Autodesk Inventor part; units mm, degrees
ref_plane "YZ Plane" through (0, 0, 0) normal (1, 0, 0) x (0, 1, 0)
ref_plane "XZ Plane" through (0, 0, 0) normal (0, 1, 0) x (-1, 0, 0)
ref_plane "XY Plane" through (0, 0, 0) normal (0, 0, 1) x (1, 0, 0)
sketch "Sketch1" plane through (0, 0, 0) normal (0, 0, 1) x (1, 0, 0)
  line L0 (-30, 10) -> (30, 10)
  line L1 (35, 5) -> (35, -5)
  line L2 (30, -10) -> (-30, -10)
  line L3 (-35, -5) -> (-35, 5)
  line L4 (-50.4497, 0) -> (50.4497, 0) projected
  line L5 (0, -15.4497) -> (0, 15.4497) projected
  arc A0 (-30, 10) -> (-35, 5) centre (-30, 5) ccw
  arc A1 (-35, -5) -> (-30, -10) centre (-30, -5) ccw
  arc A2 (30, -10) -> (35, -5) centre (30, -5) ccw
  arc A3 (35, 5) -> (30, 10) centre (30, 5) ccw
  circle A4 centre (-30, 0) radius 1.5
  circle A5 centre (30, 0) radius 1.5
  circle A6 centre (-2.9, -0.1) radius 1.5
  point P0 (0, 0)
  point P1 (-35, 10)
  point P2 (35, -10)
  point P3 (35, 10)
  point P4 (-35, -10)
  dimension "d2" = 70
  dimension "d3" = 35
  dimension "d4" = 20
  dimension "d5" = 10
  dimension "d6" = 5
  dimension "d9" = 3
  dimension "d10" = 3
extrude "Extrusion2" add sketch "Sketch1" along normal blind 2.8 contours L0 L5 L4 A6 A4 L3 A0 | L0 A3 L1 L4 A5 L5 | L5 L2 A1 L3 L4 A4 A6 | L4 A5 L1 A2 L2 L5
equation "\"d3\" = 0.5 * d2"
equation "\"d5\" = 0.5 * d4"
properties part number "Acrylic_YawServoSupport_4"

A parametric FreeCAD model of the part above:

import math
import FreeCAD as App
import Part
import Sketcher
from FreeCAD import Vector
Q = App.Units.Quantity

doc = App.newDocument("Part")
body = doc.addObject("PartDesign::Body", "Body")

sketch1 = body.newObject("Sketcher::SketchObject", "Sketch")
sketch1.AttachmentSupport = (doc.getObject("XY_Plane"), [""])
sketch1.MapMode = "FlatFace"
sketch1.addGeometry([
    Part.ArcOfCircle(Part.Circle(Vector(-30, 5, 0), Vector(0, 0, 1), 5), math.radians(90), math.radians(180)),
    Part.LineSegment(Vector(-35, 5, 0), Vector(-35, -5, 0)),
    Part.ArcOfCircle(Part.Circle(Vector(-30, -5, 0), Vector(0, 0, 1), 5), math.radians(180), math.radians(270)),
    Part.LineSegment(Vector(-30, -10, 0), Vector(30, -10, 0)),
    Part.ArcOfCircle(Part.Circle(Vector(30, -5, 0), Vector(0, 0, 1), 5), math.radians(-90), math.radians(0)),
    Part.LineSegment(Vector(35, -5, 0), Vector(35, 5, 0)),
    Part.ArcOfCircle(Part.Circle(Vector(30, 5, 0), Vector(0, 0, 1), 5), math.radians(0), math.radians(90)),
    Part.LineSegment(Vector(30, 10, 0), Vector(-30, 10, 0)),
    Part.Circle(Vector(-2.9, -0.1, 0), Vector(0, 0, 1), 1.5),
    Part.Circle(Vector(-30, 0, 0), Vector(0, 0, 1), 1.5),
    Part.Circle(Vector(30, 0, 0), Vector(0, 0, 1), 1.5),
], False)
sketch1.addConstraint([
    Sketcher.Constraint("Tangent", 0, 2, 1, 1),
    Sketcher.Constraint("Tangent", 1, 2, 2, 1),
    Sketcher.Constraint("Tangent", 2, 2, 3, 1),
    Sketcher.Constraint("Tangent", 3, 2, 4, 1),
    Sketcher.Constraint("Tangent", 4, 2, 5, 1),
    Sketcher.Constraint("Tangent", 5, 2, 6, 1),
    Sketcher.Constraint("Tangent", 6, 2, 7, 1),
    Sketcher.Constraint("Tangent", 7, 2, 0, 1),
    Sketcher.Constraint("Vertical", 1),
    Sketcher.Constraint("Horizontal", 3),
    Sketcher.Constraint("Vertical", 5),
    Sketcher.Constraint("Horizontal", 7),
    Sketcher.Constraint("Equal", 0, 2),
    Sketcher.Constraint("Equal", 2, 4),
    Sketcher.Constraint("Equal", 4, 6),
    Sketcher.Constraint("Equal", 8, 9),
    Sketcher.Constraint("Equal", 9, 10),
    Sketcher.Constraint("Symmetric", 0, 3, 4, 3, -1, 1),
    Sketcher.Constraint("Symmetric", 9, 3, 10, 3, -1, 1),
    Sketcher.Constraint("PointOnObject", 9, 3, -1),
    Sketcher.Constraint("Vertical", 2, 3, 9, 3),
    Sketcher.Constraint("Diameter", 8, Q("3 mm")),
    Sketcher.Constraint("Radius", 0, Q("5 mm")),
    Sketcher.Constraint("DistanceY", 1, 2, 1, 1, Q("10 mm")),
    Sketcher.Constraint("DistanceX", 0, 2, -1, 1, Q("35 mm")),
    Sketcher.Constraint("DistanceX", 8, 3, -1, 1, Q("2.9 mm")),
    Sketcher.Constraint("DistanceY", 8, 3, -1, 1, Q("0.1 mm")),
])
pad1 = body.newObject("PartDesign::Pad", "Pad")
pad1.Profile = sketch1
pad1.Length = 2.8

doc.recompute()
